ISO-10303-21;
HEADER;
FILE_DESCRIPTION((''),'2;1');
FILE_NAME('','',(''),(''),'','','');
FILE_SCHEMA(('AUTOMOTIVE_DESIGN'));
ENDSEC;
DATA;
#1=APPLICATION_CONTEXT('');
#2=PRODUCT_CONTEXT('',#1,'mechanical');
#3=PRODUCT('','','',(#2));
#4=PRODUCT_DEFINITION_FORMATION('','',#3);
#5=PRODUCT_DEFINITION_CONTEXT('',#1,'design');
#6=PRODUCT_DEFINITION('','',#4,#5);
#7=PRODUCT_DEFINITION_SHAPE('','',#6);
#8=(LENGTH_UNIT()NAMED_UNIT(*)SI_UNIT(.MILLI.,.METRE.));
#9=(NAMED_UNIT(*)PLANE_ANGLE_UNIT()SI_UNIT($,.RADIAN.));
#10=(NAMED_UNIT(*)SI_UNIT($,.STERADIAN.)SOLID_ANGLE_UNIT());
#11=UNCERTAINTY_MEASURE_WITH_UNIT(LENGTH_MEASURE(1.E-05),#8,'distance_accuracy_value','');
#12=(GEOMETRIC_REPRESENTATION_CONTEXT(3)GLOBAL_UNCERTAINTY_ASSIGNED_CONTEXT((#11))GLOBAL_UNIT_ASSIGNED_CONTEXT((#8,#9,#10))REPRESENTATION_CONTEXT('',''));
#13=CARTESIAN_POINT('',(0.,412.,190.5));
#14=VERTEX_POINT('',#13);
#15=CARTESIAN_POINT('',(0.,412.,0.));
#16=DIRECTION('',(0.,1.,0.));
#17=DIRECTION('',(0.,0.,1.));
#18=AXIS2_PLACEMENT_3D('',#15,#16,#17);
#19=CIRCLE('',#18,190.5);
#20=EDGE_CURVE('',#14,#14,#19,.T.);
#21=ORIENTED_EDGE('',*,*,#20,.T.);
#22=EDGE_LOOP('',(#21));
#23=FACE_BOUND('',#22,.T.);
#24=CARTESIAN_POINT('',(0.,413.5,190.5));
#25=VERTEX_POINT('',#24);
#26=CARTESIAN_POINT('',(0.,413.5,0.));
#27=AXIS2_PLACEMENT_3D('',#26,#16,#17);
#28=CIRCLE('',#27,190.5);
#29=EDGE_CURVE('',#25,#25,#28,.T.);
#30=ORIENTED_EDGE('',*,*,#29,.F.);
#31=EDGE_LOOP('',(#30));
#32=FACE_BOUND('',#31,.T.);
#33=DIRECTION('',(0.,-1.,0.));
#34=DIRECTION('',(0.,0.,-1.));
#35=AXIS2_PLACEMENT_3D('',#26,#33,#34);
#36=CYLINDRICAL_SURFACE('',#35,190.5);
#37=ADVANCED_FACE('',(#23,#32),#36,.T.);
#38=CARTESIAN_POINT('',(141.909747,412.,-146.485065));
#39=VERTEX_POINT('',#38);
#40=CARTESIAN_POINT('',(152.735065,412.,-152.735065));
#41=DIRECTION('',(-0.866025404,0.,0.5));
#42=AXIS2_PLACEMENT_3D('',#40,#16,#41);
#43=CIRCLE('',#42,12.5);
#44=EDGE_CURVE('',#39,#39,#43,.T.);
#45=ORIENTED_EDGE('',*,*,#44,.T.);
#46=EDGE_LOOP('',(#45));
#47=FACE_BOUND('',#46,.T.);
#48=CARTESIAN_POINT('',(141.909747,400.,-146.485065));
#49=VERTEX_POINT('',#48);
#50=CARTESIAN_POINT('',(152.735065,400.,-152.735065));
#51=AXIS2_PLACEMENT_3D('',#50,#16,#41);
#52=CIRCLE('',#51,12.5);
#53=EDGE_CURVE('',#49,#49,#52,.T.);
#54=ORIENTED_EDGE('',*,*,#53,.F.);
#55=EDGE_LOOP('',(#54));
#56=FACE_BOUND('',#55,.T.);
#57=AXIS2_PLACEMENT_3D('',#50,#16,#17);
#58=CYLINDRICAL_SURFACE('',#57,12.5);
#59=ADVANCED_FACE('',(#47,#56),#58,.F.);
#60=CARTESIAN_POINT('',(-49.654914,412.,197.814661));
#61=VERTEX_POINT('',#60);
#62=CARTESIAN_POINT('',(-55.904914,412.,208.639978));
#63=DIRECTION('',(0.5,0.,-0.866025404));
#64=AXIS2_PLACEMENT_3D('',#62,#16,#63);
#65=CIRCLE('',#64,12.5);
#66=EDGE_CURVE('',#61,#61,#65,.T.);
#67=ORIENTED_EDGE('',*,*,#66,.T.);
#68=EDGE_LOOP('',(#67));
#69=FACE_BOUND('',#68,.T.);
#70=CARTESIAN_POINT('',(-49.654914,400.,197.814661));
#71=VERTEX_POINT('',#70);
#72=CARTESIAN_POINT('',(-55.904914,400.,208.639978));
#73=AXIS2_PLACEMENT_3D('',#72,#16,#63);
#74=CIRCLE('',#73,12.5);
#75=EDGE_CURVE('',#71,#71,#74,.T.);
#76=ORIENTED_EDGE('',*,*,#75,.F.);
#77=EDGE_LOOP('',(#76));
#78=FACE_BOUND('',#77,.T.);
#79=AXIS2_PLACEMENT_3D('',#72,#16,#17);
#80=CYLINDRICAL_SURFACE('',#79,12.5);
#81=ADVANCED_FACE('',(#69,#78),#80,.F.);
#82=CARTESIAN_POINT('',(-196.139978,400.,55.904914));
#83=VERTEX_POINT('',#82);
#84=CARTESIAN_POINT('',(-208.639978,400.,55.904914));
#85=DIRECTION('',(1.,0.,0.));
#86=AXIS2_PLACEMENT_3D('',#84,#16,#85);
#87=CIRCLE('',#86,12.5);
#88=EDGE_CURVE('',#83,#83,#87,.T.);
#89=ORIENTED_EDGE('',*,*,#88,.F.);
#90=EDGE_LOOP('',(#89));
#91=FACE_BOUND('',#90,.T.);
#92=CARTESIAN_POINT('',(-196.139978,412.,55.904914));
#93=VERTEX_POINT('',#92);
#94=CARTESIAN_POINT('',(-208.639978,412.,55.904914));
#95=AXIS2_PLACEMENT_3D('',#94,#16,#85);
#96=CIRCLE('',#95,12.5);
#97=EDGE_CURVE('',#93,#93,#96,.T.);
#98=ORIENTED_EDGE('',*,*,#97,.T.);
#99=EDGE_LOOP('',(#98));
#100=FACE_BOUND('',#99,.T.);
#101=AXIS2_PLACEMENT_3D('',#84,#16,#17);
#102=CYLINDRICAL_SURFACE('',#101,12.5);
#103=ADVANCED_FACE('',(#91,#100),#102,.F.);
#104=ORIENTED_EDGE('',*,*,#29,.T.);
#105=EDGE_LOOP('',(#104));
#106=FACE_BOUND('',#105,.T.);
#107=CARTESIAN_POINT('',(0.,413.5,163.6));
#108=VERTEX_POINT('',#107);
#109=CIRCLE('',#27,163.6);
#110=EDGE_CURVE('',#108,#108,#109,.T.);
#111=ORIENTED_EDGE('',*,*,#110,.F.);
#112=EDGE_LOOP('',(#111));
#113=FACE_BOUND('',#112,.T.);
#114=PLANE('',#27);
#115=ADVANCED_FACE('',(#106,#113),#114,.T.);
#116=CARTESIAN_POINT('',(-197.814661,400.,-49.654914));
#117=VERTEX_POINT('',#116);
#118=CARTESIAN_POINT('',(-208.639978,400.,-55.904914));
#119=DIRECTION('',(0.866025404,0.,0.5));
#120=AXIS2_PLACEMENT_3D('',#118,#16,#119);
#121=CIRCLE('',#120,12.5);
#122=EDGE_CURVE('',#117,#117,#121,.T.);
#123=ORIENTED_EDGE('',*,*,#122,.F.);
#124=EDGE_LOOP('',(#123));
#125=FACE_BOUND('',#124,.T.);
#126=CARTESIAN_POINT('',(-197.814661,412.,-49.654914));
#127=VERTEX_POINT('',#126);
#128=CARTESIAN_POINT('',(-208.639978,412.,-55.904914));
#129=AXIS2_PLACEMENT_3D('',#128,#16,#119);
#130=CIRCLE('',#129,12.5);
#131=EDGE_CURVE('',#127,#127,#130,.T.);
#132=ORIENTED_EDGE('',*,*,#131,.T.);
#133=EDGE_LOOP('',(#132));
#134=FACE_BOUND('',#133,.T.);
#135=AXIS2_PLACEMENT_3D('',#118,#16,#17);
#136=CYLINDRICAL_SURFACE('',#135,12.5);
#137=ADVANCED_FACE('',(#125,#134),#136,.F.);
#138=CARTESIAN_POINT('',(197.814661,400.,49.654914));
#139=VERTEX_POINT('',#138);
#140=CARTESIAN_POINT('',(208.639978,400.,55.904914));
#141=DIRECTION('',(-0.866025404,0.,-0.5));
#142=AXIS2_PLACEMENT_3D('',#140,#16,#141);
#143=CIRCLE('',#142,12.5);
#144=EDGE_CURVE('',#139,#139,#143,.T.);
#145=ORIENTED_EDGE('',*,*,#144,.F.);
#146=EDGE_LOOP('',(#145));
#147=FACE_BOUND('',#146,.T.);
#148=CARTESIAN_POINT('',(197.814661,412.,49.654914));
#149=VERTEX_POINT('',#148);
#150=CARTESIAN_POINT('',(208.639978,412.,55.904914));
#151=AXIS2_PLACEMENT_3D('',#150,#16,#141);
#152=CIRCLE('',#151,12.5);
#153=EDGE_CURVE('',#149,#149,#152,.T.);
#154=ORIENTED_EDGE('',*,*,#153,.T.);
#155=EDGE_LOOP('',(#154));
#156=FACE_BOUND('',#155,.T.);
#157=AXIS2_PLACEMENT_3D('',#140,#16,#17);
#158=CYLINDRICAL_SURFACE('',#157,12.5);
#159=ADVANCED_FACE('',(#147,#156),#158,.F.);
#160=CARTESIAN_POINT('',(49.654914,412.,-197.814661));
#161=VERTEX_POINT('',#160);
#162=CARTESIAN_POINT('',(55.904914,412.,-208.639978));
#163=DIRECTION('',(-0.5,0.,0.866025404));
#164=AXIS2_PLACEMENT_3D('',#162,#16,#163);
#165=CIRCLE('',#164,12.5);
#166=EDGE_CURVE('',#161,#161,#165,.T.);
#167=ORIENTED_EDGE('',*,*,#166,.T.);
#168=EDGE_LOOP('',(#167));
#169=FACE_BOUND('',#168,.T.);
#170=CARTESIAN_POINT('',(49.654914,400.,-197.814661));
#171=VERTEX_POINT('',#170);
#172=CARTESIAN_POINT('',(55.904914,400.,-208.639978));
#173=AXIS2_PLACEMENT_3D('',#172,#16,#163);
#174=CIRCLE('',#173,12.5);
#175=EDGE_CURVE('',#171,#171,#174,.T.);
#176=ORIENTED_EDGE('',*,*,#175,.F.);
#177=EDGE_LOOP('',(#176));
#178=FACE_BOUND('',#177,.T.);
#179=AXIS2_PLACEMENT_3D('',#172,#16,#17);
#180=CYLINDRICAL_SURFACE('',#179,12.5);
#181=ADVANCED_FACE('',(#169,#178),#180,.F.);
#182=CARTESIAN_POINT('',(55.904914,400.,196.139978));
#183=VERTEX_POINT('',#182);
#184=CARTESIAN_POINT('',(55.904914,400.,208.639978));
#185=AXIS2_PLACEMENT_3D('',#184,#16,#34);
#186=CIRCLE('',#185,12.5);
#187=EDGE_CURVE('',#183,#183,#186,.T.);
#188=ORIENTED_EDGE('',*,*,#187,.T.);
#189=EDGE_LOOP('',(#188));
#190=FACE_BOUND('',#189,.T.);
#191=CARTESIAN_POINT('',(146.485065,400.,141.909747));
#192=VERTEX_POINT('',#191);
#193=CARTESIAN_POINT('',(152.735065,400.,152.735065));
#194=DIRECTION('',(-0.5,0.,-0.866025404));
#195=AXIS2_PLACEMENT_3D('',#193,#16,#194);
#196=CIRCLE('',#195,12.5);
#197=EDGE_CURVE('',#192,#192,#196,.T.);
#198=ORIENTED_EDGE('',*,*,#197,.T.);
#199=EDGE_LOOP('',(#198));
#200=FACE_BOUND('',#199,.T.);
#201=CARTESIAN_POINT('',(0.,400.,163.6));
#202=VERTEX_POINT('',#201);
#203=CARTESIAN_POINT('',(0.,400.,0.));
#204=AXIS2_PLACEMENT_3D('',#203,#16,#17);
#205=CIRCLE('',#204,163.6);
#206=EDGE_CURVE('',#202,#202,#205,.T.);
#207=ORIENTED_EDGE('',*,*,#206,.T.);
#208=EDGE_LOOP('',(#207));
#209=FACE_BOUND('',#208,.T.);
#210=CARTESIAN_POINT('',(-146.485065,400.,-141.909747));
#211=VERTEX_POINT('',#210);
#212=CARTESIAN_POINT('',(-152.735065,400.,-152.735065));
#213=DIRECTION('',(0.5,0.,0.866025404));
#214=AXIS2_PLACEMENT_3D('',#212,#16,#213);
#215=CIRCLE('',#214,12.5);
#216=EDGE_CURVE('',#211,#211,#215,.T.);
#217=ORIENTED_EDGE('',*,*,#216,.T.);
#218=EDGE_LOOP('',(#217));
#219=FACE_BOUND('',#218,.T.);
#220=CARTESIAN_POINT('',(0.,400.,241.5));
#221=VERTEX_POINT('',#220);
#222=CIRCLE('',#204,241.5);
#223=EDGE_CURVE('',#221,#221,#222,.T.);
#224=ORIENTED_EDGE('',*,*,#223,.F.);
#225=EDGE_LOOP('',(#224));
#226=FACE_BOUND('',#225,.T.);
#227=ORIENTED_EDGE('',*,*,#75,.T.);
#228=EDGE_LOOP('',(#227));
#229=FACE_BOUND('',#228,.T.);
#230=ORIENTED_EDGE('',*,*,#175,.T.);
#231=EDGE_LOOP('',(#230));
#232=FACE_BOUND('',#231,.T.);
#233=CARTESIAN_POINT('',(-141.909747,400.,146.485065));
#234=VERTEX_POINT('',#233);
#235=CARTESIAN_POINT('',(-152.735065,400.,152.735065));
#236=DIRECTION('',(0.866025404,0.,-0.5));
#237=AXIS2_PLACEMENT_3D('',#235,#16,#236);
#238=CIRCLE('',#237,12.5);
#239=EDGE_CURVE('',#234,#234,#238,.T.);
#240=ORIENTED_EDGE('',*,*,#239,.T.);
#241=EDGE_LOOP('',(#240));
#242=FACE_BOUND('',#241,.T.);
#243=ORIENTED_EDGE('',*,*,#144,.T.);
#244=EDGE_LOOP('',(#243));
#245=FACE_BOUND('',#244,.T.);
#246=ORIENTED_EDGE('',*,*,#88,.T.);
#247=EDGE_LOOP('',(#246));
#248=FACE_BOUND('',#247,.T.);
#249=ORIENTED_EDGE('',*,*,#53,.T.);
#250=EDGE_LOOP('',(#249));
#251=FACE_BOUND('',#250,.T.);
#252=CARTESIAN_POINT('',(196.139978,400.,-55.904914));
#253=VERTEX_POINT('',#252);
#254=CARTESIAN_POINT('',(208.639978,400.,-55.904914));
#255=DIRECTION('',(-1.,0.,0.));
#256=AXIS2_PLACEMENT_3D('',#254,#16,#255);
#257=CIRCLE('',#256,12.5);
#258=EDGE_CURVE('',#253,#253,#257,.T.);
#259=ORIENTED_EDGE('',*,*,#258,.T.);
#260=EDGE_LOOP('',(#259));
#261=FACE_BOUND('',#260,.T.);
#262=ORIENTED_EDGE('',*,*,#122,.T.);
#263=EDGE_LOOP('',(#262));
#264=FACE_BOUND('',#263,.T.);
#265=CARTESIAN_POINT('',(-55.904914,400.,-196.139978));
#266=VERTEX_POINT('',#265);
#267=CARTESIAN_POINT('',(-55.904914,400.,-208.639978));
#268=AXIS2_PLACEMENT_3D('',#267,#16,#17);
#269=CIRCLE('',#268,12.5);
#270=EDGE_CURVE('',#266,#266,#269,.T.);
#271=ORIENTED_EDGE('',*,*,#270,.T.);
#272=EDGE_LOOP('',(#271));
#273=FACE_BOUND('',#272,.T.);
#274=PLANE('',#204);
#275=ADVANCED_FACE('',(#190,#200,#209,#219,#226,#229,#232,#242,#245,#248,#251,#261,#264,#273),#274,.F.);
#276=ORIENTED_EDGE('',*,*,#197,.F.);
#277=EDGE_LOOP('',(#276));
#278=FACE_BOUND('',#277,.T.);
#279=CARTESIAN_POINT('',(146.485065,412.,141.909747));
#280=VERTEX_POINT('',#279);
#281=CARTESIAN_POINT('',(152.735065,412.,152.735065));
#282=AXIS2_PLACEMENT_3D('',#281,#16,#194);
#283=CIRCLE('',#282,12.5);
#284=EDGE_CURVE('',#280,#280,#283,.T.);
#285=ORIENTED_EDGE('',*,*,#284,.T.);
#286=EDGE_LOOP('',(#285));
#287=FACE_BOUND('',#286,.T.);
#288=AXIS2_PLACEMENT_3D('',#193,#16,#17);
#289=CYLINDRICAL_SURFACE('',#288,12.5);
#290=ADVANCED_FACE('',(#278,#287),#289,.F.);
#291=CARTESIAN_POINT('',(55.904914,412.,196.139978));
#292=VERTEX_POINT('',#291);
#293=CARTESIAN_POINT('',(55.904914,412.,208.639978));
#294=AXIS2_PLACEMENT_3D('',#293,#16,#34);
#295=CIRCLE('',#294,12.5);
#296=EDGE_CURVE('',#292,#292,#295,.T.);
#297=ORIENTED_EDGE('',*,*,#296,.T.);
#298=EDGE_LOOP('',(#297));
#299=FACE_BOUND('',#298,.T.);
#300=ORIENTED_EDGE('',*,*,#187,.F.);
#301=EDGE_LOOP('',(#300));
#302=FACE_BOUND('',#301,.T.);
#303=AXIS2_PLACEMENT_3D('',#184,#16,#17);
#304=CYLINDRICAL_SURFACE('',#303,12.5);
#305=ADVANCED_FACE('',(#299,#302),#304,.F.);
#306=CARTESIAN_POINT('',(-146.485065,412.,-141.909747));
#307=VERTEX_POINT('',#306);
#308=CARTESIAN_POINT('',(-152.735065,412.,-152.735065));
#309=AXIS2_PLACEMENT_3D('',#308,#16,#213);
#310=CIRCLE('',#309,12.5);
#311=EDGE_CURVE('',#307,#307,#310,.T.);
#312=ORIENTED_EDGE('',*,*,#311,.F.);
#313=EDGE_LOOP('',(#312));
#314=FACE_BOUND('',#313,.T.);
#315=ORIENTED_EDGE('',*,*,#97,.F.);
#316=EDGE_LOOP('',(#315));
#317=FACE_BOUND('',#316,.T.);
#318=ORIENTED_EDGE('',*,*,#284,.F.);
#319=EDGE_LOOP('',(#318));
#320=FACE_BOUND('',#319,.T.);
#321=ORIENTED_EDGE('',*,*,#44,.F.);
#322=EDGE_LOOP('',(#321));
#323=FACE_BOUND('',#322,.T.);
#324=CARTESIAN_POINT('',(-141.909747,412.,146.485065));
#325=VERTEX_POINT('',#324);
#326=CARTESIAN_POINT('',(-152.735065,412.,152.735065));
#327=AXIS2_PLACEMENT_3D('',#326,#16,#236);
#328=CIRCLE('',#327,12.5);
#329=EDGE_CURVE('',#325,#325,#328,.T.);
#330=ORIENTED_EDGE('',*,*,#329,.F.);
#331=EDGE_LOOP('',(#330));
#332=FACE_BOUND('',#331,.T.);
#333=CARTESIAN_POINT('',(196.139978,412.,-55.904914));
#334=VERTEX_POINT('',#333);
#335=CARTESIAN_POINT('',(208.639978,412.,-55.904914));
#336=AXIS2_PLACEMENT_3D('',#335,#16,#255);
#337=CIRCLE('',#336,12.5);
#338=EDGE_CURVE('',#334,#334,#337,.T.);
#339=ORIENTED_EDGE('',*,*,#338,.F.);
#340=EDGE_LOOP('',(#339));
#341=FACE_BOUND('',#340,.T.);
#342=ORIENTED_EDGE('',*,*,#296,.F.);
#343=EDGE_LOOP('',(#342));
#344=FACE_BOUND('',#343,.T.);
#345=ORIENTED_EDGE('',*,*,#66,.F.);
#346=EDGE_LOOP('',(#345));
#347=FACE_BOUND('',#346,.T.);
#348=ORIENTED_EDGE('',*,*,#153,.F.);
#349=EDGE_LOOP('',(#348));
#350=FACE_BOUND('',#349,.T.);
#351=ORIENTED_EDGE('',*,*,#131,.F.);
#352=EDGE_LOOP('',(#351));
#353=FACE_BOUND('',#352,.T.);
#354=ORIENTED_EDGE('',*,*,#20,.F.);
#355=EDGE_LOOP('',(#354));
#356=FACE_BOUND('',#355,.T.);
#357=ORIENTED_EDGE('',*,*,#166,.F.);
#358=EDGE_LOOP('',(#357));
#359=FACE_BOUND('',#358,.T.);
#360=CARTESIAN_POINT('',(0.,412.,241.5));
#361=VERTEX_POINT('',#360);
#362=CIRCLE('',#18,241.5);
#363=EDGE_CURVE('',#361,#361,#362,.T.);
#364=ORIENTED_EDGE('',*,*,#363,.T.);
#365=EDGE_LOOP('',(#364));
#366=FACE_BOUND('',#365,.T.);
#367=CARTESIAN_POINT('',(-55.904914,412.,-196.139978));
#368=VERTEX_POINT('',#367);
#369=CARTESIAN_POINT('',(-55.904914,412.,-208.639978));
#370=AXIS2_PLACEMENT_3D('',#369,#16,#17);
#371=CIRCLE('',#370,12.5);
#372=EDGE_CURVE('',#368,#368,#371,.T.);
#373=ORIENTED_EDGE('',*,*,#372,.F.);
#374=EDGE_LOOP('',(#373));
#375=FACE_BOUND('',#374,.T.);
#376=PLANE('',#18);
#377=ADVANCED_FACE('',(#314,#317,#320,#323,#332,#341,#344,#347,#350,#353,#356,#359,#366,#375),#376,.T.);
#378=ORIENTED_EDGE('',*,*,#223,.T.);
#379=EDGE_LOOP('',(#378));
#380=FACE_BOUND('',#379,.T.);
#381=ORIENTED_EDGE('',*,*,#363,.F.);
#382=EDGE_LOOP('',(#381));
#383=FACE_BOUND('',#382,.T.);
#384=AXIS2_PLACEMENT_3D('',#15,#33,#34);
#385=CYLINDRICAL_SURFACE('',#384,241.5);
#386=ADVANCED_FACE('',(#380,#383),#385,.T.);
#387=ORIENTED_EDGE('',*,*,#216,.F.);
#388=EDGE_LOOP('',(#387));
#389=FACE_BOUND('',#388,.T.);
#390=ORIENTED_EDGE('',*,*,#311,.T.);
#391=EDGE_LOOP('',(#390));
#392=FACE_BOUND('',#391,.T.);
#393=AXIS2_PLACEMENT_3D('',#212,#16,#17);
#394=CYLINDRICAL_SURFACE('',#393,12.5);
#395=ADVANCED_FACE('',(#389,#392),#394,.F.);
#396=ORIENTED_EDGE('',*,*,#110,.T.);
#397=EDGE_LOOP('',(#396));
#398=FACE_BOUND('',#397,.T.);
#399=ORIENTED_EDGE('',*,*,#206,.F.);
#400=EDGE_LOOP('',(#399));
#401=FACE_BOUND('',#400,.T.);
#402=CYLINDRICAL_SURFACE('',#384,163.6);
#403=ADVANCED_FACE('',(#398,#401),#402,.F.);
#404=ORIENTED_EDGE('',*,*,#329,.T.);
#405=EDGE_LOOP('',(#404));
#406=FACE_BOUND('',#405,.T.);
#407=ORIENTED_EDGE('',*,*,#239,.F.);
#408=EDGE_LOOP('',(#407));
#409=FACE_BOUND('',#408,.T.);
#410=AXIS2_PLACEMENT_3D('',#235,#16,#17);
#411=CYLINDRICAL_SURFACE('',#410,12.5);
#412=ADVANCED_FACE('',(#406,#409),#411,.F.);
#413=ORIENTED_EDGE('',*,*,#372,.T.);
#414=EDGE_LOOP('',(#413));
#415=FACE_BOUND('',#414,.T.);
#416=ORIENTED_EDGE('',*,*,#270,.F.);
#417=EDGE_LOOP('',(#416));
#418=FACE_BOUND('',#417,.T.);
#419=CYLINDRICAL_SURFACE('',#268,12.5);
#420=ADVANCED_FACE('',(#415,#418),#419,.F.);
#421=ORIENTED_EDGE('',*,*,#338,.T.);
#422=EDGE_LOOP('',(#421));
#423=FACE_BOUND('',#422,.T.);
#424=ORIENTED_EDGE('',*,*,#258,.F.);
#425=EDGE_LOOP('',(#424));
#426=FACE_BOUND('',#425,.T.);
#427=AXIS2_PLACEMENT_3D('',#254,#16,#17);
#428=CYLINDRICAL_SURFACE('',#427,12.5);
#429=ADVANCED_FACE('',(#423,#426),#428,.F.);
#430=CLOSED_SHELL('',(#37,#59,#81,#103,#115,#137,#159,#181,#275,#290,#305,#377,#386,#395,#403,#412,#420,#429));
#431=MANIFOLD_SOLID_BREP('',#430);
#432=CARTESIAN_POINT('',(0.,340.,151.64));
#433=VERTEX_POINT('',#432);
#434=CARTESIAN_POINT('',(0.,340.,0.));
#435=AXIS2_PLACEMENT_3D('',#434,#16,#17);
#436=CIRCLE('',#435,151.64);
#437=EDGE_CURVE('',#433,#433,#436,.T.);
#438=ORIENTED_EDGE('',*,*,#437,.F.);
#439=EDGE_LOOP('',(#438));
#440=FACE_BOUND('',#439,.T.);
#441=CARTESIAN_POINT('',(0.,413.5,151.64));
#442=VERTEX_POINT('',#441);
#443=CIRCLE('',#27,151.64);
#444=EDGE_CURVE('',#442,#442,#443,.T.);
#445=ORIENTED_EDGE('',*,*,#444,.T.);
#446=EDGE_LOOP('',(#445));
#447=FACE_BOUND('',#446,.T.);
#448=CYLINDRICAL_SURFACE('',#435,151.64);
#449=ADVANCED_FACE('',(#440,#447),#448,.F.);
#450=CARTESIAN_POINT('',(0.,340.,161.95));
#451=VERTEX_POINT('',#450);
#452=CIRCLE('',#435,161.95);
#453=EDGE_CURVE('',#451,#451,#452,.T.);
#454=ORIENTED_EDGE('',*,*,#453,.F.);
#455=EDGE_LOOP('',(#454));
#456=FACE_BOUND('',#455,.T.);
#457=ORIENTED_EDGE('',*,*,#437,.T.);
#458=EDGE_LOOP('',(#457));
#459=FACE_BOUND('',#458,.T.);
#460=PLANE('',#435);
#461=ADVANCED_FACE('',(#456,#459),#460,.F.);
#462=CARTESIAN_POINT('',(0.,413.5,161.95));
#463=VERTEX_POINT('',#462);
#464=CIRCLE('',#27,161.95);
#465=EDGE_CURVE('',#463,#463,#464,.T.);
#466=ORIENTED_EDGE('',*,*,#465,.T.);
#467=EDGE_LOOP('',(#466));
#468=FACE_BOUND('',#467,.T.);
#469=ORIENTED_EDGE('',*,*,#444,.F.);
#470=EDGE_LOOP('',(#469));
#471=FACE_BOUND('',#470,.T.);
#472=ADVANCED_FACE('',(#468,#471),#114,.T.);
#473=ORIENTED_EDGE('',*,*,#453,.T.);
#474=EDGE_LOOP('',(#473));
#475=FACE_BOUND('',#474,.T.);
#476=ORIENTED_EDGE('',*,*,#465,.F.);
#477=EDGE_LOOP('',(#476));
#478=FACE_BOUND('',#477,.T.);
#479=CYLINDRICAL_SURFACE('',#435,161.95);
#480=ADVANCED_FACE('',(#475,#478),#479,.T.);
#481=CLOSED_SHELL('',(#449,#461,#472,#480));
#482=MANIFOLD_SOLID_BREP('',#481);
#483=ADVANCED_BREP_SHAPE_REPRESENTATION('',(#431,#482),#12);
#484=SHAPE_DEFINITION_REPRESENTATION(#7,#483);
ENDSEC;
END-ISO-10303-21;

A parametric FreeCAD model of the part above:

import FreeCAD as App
import Part
import Sketcher
from FreeCAD import Vector

doc = App.newDocument("Part")
body = doc.addObject("PartDesign::Body", "Body")

# Sketch on XZ plane
sketch1 = body.newObject("Sketcher::SketchObject", "Sketch")
sketch1.AttachmentSupport = (doc.getObject("XZ_Plane"), [""])
sketch1.MapMode = "FlatFace"
sketch1.AttachmentOffset = App.Placement(Vector(0, 0, -400), App.Rotation())
sketch1.addGeometry([
    Part.Circle(Vector(0, 0, 0), Vector(0, 0, 1), 241.5),
    Part.Circle(Vector(0, 0, 0), Vector(0, 0, 1), 163.6),
], False)
sketch1.addConstraint([
    Sketcher.Constraint("Coincident", 0, 3, -1, 1),
    Sketcher.Constraint("Coincident", 1, 3, -1, 1),
    Sketcher.Constraint("Diameter", 0, 483.0),
    Sketcher.Constraint("Diameter", 1, 327.2),
])
pad1 = body.newObject("PartDesign::Pad", "Pad")
pad1.Profile = sketch1
pad1.Length = 12
pad1.Reversed = True

# Sketch on XZ plane
sketch2 = body.newObject("Sketcher::SketchObject", "Sketch001")
sketch2.AttachmentSupport = (doc.getObject("XZ_Plane"), [""])
sketch2.MapMode = "FlatFace"
sketch2.AttachmentOffset = App.Placement(Vector(0, 0, -412), App.Rotation())
sketch2.addGeometry(Part.Circle(Vector(-55.904914, -208.639978, 0), Vector(0, 0, 1), 12.5), False)
sketch2.addConstraint([
    Sketcher.Constraint("Diameter", 0, 25.0),
    Sketcher.Constraint("DistanceY", 0, 3, -1, 1, 208.639978),
    Sketcher.Constraint("DistanceX", 0, 3, -1, 1, 55.904914),
])
pocket1 = body.newObject("PartDesign::Pocket", "Pocket")
pocket1.Profile = sketch2
pocket1.Length = 12
pocket1.Reversed = True
doc.recompute()

polarpattern = body.newObject("PartDesign::PolarPattern", "PolarPattern")
polarpattern.Originals = [pocket1]
polarpattern.Axis = (doc.getObject("Y_Axis"), [""])
polarpattern.Angle = 360
polarpattern.Occurrences = 12
body.Tip = polarpattern

# Sketch on XZ plane
sketch3 = body.newObject("Sketcher::SketchObject", "Sketch002")
sketch3.AttachmentSupport = (doc.getObject("XZ_Plane"), [""])
sketch3.MapMode = "FlatFace"
sketch3.AttachmentOffset = App.Placement(Vector(0, 0, -412), App.Rotation())
sketch3.addGeometry([
    Part.Circle(Vector(0, 0, 0), Vector(0, 0, 1), 190.5),
    Part.Circle(Vector(0, 0, 0), Vector(0, 0, 1), 163.6),
], False)
sketch3.addConstraint([
    Sketcher.Constraint("Coincident", 0, 3, -1, 1),
    Sketcher.Constraint("Coincident", 1, 3, -1, 1),
    Sketcher.Constraint("Diameter", 0, 381.0),
    Sketcher.Constraint("Diameter", 1, 327.2),
])
pad2 = body.newObject("PartDesign::Pad", "Pad001")
pad2.Profile = sketch3
pad2.Length = 1.5
pad2.Reversed = True
body2 = doc.addObject("PartDesign::Body", "Body001")

# Sketch on XZ plane
sketch4 = body2.newObject("Sketcher::SketchObject", "Sketch003")
sketch4.AttachmentSupport = (doc.getObject("XZ_Plane001"), [""])
sketch4.MapMode = "FlatFace"
sketch4.AttachmentOffset = App.Placement(Vector(0, 0, -413.5), App.Rotation())
sketch4.addGeometry([
    Part.Circle(Vector(0, 0, 0), Vector(0, 0, 1), 161.95),
    Part.Circle(Vector(0, 0, 0), Vector(0, 0, 1), 151.64),
], False)
sketch4.addConstraint([
    Sketcher.Constraint("Coincident", 0, 3, -1, 1),
    Sketcher.Constraint("Coincident", 1, 3, -1, 1),
    Sketcher.Constraint("Diameter", 0, 323.9),
    Sketcher.Constraint("Diameter", 1, 303.28),
])
pad3 = body2.newObject("PartDesign::Pad", "Pad002")
pad3.Profile = sketch4
pad3.Length = 73.5

doc.recompute()
